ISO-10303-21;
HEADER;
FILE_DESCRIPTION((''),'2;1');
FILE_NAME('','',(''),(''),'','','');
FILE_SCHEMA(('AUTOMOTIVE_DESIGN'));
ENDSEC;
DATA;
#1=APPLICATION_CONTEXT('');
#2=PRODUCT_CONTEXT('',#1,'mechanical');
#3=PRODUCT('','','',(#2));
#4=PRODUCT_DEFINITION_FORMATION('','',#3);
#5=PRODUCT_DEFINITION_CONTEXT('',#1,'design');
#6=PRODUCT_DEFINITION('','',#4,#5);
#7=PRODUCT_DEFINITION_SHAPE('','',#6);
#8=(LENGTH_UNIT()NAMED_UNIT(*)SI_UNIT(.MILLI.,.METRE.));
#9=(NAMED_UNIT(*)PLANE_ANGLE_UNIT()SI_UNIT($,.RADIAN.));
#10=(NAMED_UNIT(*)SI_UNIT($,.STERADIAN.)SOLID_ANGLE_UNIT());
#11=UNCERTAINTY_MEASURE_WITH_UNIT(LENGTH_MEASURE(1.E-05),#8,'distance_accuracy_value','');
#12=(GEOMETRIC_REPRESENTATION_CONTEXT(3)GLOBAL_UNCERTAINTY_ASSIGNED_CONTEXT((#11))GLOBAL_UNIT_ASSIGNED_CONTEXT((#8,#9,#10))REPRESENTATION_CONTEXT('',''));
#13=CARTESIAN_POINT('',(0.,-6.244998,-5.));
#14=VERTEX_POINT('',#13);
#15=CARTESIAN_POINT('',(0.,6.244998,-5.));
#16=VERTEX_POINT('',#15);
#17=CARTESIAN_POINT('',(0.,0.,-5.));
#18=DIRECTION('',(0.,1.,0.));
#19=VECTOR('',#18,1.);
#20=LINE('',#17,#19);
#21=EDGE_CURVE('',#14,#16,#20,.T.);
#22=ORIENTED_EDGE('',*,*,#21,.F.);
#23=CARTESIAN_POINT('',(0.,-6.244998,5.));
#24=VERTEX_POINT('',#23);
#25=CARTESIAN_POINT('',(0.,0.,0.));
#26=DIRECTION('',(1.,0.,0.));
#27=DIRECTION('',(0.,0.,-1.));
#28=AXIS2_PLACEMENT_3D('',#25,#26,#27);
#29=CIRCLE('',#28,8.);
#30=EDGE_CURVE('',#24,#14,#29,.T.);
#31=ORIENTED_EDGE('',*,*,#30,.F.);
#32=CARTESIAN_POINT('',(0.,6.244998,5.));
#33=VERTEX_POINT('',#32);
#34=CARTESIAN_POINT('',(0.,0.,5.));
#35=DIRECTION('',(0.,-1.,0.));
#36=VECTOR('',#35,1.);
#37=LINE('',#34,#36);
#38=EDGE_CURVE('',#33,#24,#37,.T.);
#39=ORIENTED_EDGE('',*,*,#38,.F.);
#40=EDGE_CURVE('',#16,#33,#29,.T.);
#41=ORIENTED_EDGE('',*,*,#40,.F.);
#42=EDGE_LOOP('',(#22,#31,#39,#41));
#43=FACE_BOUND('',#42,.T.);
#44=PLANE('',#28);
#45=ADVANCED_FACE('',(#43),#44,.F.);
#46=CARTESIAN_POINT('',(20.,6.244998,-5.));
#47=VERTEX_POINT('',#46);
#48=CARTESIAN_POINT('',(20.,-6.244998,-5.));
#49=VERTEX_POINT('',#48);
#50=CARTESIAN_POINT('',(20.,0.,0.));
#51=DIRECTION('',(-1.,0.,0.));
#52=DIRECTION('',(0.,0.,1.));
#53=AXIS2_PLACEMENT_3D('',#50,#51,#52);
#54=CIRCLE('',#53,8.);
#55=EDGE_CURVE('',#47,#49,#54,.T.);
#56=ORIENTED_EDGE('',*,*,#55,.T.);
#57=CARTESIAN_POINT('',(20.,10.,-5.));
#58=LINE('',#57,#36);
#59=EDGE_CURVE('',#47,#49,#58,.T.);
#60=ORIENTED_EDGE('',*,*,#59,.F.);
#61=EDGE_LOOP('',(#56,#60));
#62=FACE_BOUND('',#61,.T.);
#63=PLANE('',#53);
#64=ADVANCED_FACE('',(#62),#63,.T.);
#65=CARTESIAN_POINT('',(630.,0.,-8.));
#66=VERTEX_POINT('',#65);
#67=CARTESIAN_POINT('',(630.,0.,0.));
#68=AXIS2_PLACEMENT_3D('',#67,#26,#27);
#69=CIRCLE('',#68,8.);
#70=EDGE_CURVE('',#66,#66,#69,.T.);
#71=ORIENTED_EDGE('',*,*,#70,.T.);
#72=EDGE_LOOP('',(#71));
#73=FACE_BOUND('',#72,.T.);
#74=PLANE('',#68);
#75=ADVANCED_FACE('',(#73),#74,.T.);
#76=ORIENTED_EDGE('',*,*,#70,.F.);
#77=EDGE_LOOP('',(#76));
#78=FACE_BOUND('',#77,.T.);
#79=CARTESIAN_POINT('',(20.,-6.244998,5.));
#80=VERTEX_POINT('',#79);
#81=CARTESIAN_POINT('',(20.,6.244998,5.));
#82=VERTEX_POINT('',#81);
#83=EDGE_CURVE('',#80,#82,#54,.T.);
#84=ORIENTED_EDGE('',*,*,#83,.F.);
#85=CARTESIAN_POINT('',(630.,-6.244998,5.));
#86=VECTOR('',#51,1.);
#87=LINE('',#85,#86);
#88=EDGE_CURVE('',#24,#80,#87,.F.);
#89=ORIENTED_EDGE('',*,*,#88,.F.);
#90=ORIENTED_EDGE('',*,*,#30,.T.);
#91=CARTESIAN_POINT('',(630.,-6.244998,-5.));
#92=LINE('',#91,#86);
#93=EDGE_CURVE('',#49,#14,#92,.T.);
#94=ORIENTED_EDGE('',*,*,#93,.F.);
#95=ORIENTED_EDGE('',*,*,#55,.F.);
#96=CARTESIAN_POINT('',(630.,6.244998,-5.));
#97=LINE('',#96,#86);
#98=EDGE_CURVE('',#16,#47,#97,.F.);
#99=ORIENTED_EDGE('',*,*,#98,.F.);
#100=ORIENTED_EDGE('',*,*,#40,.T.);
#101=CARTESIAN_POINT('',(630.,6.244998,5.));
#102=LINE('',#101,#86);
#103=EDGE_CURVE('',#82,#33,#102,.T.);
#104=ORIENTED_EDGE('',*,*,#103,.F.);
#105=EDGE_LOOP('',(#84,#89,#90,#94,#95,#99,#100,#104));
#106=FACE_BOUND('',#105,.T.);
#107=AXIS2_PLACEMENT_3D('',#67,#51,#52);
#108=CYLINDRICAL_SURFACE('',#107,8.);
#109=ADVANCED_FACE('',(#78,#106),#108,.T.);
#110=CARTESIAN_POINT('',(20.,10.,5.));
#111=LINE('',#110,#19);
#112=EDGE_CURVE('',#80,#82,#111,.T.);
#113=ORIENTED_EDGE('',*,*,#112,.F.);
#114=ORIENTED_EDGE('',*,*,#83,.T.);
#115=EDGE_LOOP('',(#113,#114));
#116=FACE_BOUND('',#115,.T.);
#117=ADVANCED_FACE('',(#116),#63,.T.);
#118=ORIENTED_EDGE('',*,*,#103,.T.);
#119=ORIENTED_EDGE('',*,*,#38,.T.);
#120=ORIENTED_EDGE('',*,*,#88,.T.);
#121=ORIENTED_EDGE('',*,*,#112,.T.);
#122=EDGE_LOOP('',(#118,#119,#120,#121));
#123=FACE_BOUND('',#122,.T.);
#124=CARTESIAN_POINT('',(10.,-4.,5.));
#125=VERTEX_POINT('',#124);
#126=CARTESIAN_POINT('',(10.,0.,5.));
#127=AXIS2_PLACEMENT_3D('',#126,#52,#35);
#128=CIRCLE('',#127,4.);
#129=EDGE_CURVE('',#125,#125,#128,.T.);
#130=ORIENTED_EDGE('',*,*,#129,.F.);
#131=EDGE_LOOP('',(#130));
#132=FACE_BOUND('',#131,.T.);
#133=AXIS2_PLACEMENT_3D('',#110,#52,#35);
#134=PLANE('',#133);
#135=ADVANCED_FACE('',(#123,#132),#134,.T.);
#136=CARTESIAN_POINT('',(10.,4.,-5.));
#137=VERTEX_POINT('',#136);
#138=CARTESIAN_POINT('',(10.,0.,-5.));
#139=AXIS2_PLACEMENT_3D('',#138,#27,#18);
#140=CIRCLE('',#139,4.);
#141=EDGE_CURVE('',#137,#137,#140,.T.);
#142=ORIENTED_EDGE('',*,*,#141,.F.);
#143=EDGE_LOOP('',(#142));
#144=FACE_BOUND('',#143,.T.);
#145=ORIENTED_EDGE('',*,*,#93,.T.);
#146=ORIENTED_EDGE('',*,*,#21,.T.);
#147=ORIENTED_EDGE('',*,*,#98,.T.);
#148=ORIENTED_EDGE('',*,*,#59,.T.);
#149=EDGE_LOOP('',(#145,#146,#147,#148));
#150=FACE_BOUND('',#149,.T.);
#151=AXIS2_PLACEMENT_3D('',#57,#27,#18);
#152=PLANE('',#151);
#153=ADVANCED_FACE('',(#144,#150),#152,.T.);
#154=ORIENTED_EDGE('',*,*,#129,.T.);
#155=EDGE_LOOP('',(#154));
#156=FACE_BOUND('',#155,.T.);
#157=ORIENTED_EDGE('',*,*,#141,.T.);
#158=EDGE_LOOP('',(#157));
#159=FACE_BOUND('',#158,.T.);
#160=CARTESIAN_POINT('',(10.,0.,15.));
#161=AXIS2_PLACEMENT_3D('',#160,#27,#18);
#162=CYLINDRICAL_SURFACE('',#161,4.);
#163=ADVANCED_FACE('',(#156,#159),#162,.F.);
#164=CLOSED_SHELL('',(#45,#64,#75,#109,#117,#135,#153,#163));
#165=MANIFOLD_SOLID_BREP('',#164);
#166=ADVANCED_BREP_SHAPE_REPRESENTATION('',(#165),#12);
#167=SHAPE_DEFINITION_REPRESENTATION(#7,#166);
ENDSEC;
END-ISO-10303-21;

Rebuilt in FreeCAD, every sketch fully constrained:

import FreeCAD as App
import Part
import Sketcher
from FreeCAD import Vector
Q = App.Units.Quantity

doc = App.newDocument("Part")
body = doc.addObject("PartDesign::Body", "Body")

# Sketch on YZ plane
sketch1 = doc.addObject("Sketcher::SketchObject", "Sketch")
body.addObject(sketch1)
sketch1.AttachmentSupport = (doc.YZ_Plane, [""])
sketch1.MapMode = "FlatFace"
sketch1.addGeometry(Part.Circle(Vector(0, 0, 0), Vector(0, 0, 1), 8), False)
sketch1.addConstraint(Sketcher.Constraint("Coincident", 0, 3, -1, 1))
sketch1.addConstraint(Sketcher.Constraint("Diameter", 0, Q("16 mm")))
pad1 = doc.addObject("PartDesign::Pad", "Pad")
body.addObject(pad1)
pad1.Profile = sketch1
pad1.Length = 630

# Sketch on YZ plane
sketch2 = doc.addObject("Sketcher::SketchObject", "Sketch001")
body.addObject(sketch2)
sketch2.AttachmentSupport = (doc.YZ_Plane, [""])
sketch2.MapMode = "FlatFace"
sketch2.addGeometry(Part.LineSegment(Vector(72.041, -72.041, 0), Vector(-72.041, -72.041, 0)), False)
sketch2.addGeometry(Part.LineSegment(Vector(-72.041, -72.041, 0), Vector(-72.041, 72.041, 0)), False)
sketch2.addGeometry(Part.LineSegment(Vector(-72.041, 72.041, 0), Vector(72.041, 72.041, 0)), False)
sketch2.addGeometry(Part.LineSegment(Vector(72.041, 72.041, 0), Vector(72.041, -72.041, 0)), False)
sketch2.addGeometry(Part.LineSegment(Vector(-10, 5, 0), Vector(-10, -5, 0)), False)
sketch2.addGeometry(Part.LineSegment(Vector(-10, -5, 0), Vector(10, -5, 0)), False)
sketch2.addGeometry(Part.LineSegment(Vector(10, -5, 0), Vector(10, 5, 0)), False)
sketch2.addGeometry(Part.LineSegment(Vector(10, 5, 0), Vector(-10, 5, 0)), False)
sketch2.addConstraint(Sketcher.Constraint("Coincident", 0, 2, 1, 1))
sketch2.addConstraint(Sketcher.Constraint("Coincident", 1, 2, 2, 1))
sketch2.addConstraint(Sketcher.Constraint("Coincident", 2, 2, 3, 1))
sketch2.addConstraint(Sketcher.Constraint("Coincident", 3, 2, 0, 1))
sketch2.addConstraint(Sketcher.Constraint("Coincident", 4, 2, 5, 1))
sketch2.addConstraint(Sketcher.Constraint("Coincident", 5, 2, 6, 1))
sketch2.addConstraint(Sketcher.Constraint("Coincident", 6, 2, 7, 1))
sketch2.addConstraint(Sketcher.Constraint("Coincident", 7, 2, 4, 1))
sketch2.addConstraint(Sketcher.Constraint("Horizontal", 0))
sketch2.addConstraint(Sketcher.Constraint("Vertical", 1))
sketch2.addConstraint(Sketcher.Constraint("Horizontal", 2))
sketch2.addConstraint(Sketcher.Constraint("Vertical", 3))
sketch2.addConstraint(Sketcher.Constraint("Vertical", 4))
sketch2.addConstraint(Sketcher.Constraint("Horizontal", 5))
sketch2.addConstraint(Sketcher.Constraint("Vertical", 6))
sketch2.addConstraint(Sketcher.Constraint("Horizontal", 7))
sketch2.addConstraint(Sketcher.Constraint("Symmetric", 0, 2, 2, 2, -1, 1))
sketch2.addConstraint(Sketcher.Constraint("Symmetric", 4, 2, 6, 2, -1, 1))
sketch2.addConstraint(Sketcher.Constraint("Equal", 2, 1))
sketch2.addConstraint(Sketcher.Constraint("DistanceX", 5, 1, 5, 2, Q("20 mm")))
sketch2.addConstraint(Sketcher.Constraint("DistanceY", 4, 2, 4, 1, Q("10 mm")))
sketch2.addConstraint(Sketcher.Constraint("DistanceX", 0, 2, 0, 1, Q("144.082 mm")))
pocket1 = doc.addObject("PartDesign::Pocket", "Pocket")
body.addObject(pocket1)
pocket1.Profile = sketch2
pocket1.Length = 20
pocket1.Reversed = True

# Sketch on XY plane
sketch3 = doc.addObject("Sketcher::SketchObject", "Sketch002")
body.addObject(sketch3)
sketch3.AttachmentSupport = (doc.XY_Plane, [""])
sketch3.MapMode = "FlatFace"
sketch3.AttachmentOffset = App.Placement(Vector(0, 0, -5), App.Rotation())
sketch3.addGeometry(Part.Circle(Vector(10, 0, 0), Vector(0, 0, 1), 4), False)
sketch3.addConstraint(Sketcher.Constraint("PointOnObject", 0, 3, -1))
sketch3.addConstraint(Sketcher.Constraint("Diameter", 0, Q("8 mm")))
sketch3.addConstraint(Sketcher.Constraint("DistanceX", -1, 1, 0, 3, Q("10 mm")))
pocket2 = doc.addObject("PartDesign::Pocket", "Pocket001")
body.addObject(pocket2)
pocket2.Profile = sketch3
pocket2.Length = 20
pocket2.Reversed = True

doc.recompute()
